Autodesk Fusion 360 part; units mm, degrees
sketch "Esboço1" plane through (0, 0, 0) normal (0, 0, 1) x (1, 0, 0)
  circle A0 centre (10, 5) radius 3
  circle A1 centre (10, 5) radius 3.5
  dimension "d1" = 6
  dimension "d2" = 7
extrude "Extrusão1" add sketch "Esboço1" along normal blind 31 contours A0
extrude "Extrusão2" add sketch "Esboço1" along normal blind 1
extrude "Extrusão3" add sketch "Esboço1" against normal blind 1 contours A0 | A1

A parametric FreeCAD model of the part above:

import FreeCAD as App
import Part
import Sketcher
from FreeCAD import Vector

doc = App.newDocument("Part")
body = doc.addObject("PartDesign::Body", "Body")

# Sketch on XY plane
sketch1 = body.newObject("Sketcher::SketchObject", "Sketch")
sketch1.AttachmentSupport = (doc.getObject("XY_Plane"), [""])
sketch1.MapMode = "FlatFace"
sketch1.addGeometry(Part.Circle(Vector(10, 5, 0), Vector(0, 0, 1), 3), False)
sketch1.addConstraint([
    Sketcher.Constraint("Diameter", 0, 6.0),
    Sketcher.Constraint("DistanceX", -1, 1, 0, 3, 10.0),
    Sketcher.Constraint("DistanceY", -1, 1, 0, 3, 5.0),
])
pad1 = body.newObject("PartDesign::Pad", "Pad")
pad1.Profile = sketch1
pad1.Length = 31

# Sketch on XY plane
sketch2 = body.newObject("Sketcher::SketchObject", "Sketch001")
sketch2.AttachmentSupport = (doc.getObject("XY_Plane"), [""])
sketch2.MapMode = "FlatFace"
sketch2.addGeometry([
    Part.Circle(Vector(10, 5, 0), Vector(0, 0, 1), 3.5),
    Part.Circle(Vector(10, 5, 0), Vector(0, 0, 1), 3),
], False)
sketch2.addConstraint([
    Sketcher.Constraint("Coincident", 1, 3, 0, 3),
    Sketcher.Constraint("Diameter", 0, 7.0),
    Sketcher.Constraint("Diameter", 1, 6.0),
    Sketcher.Constraint("DistanceX", -1, 1, 0, 3, 10.0),
    Sketcher.Constraint("DistanceY", -1, 1, 0, 3, 5.0),
])
pad2 = body.newObject("PartDesign::Pad", "Pad001")
pad2.Profile = sketch2
pad2.Length = 1

# Sketch on XY plane
sketch3 = body.newObject("Sketcher::SketchObject", "Sketch002")
sketch3.AttachmentSupport = (doc.getObject("XY_Plane"), [""])
sketch3.MapMode = "FlatFace"
sketch3.addGeometry(Part.Circle(Vector(10, 5, 0), Vector(0, 0, 1), 3.5), False)
sketch3.addConstraint([
    Sketcher.Constraint("Diameter", 0, 7.0),
    Sketcher.Constraint("DistanceX", -1, 1, 0, 3, 10.0),
    Sketcher.Constraint("DistanceY", -1, 1, 0, 3, 5.0),
])
pad3 = body.newObject("PartDesign::Pad", "Pad002")
pad3.Profile = sketch3
pad3.Length = 1
pad3.Reversed = True

doc.recompute()
